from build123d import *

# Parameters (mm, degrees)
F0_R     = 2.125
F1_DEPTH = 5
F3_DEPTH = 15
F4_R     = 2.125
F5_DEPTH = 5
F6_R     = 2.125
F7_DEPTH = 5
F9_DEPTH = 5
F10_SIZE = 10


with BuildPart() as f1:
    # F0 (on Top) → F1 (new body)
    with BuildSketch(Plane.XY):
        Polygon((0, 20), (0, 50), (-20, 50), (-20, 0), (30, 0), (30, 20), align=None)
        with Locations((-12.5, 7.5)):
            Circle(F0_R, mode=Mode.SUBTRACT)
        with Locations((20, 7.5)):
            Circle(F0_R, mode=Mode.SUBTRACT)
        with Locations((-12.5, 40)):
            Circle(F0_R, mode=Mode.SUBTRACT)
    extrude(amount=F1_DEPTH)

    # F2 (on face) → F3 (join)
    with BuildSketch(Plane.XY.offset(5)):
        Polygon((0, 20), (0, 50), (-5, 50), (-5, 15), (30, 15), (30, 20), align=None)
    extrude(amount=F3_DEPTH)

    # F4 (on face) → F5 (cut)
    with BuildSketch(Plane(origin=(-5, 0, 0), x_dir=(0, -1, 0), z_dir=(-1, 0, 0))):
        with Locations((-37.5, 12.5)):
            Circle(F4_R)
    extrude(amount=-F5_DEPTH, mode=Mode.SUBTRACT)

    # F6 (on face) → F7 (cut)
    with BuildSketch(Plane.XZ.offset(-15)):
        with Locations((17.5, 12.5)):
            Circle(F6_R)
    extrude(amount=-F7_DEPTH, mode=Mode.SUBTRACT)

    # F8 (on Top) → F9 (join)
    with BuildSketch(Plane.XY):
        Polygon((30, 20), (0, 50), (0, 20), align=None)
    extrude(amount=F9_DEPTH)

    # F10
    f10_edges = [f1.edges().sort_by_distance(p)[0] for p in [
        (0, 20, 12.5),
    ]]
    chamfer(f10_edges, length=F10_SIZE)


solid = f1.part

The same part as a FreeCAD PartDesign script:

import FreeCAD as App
import Part
import Sketcher

V = App.Vector


def edges_at(feature, points):
    """Names of the edges that pass closest to the given points."""
    edges = feature.Shape.Edges
    near = lambda p: min(range(len(edges)), key=lambda i: edges[i].distToShape(Part.Vertex(*p))[0])
    return sorted({f"Edge{near(p) + 1}" for p in points})

doc = App.newDocument("Part")
body = doc.addObject("PartDesign::Body", "Body")

sketch1 = body.newObject("Sketcher::SketchObject", "Sketch")
sketch1.AttachmentSupport = (doc.getObject("XY_Plane"), [""])
sketch1.MapMode = "FlatFace"
sketch1.addGeometry(Part.LineSegment(V(0, 20, 0), V(0, 50, 0)), False)
sketch1.addGeometry(Part.LineSegment(V(0, 50, 0), V(-20, 50, 0)), False)
sketch1.addGeometry(Part.LineSegment(V(-20, 50, 0), V(-20, 0, 0)), False)
sketch1.addGeometry(Part.LineSegment(V(-20, 0, 0), V(30, 0, 0)), False)
sketch1.addGeometry(Part.LineSegment(V(30, 0, 0), V(30, 20, 0)), False)
sketch1.addGeometry(Part.LineSegment(V(30, 20, 0), V(0, 20, 0)), False)
sketch1.addGeometry(Part.Circle(V(-12.5, 7.5, 0), V(0, 0, 1), 2.125), False)
sketch1.addGeometry(Part.Circle(V(20, 7.5, 0), V(0, 0, 1), 2.125), False)
sketch1.addGeometry(Part.Circle(V(-12.5, 40, 0), V(0, 0, 1), 2.125), False)
sketch1.addConstraint(Sketcher.Constraint("Coincident", 0, 2, 1, 1))
sketch1.addConstraint(Sketcher.Constraint("Coincident", 1, 2, 2, 1))
sketch1.addConstraint(Sketcher.Constraint("Coincident", 2, 2, 3, 1))
sketch1.addConstraint(Sketcher.Constraint("Coincident", 3, 2, 4, 1))
sketch1.addConstraint(Sketcher.Constraint("Coincident", 4, 2, 5, 1))
sketch1.addConstraint(Sketcher.Constraint("Coincident", 5, 2, 0, 1))
sketch1.addConstraint(Sketcher.Constraint("Vertical", 0))
sketch1.addConstraint(Sketcher.Constraint("Horizontal", 1))
sketch1.addConstraint(Sketcher.Constraint("Vertical", 2))
sketch1.addConstraint(Sketcher.Constraint("Horizontal", 3))
sketch1.addConstraint(Sketcher.Constraint("Vertical", 4))
sketch1.addConstraint(Sketcher.Constraint("Horizontal", 5))
sketch1.addConstraint(Sketcher.Constraint("Equal", 6, 7))
sketch1.addConstraint(Sketcher.Constraint("Equal", 7, 8))
sketch1.addConstraint(Sketcher.Constraint("PointOnObject", 0, 2, -2))
sketch1.addConstraint(Sketcher.Constraint("PointOnObject", 2, 2, -1))
sketch1.addConstraint(Sketcher.Constraint("Horizontal", 6, 3, 7, 3))
sketch1.addConstraint(Sketcher.Constraint("Vertical", 6, 3, 8, 3))
sketch1.addConstraint(Sketcher.Constraint("Equal", 5, 0))
sketch1.addConstraint(Sketcher.Constraint("Equal", 3, 2))
sketch1.addConstraint(Sketcher.Constraint("Diameter", 6, 4.25))
sketch1.addConstraint(Sketcher.Constraint("DistanceX", 1, 2, 1, 1, 20.0))
sketch1.addConstraint(Sketcher.Constraint("DistanceX", 3, 1, 3, 2, 50.0))
sketch1.addConstraint(Sketcher.Constraint("DistanceX", -1, 1, 7, 3, 20.0))
sketch1.addConstraint(Sketcher.Constraint("DistanceY", -1, 1, 8, 3, 40.0))
sketch1.addConstraint(Sketcher.Constraint("DistanceX", 6, 3, -1, 1, 12.5))
sketch1.addConstraint(Sketcher.Constraint("DistanceY", -1, 1, 6, 3, 7.5))
pad1 = body.newObject("PartDesign::Pad", "Pad")
pad1.Profile = sketch1
pad1.Length = 5

sketch2 = body.newObject("Sketcher::SketchObject", "Sketch001")
sketch2.AttachmentSupport = (doc.getObject("XY_Plane"), [""])
sketch2.MapMode = "FlatFace"
sketch2.AttachmentOffset = App.Placement(V(0, 0, 5), App.Rotation())
sketch2.addGeometry(Part.LineSegment(V(0, 20, 0), V(0, 50, 0)), False)
sketch2.addGeometry(Part.LineSegment(V(0, 50, 0), V(-5, 50, 0)), False)
sketch2.addGeometry(Part.LineSegment(V(-5, 50, 0), V(-5, 15, 0)), False)
sketch2.addGeometry(Part.LineSegment(V(-5, 15, 0), V(30, 15, 0)), False)
sketch2.addGeometry(Part.LineSegment(V(30, 15, 0), V(30, 20, 0)), False)
sketch2.addGeometry(Part.LineSegment(V(30, 20, 0), V(0, 20, 0)), False)
sketch2.addConstraint(Sketcher.Constraint("Coincident", 0, 2, 1, 1))
sketch2.addConstraint(Sketcher.Constraint("Coincident", 1, 2, 2, 1))
sketch2.addConstraint(Sketcher.Constraint("Coincident", 2, 2, 3, 1))
sketch2.addConstraint(Sketcher.Constraint("Coincident", 3, 2, 4, 1))
sketch2.addConstraint(Sketcher.Constraint("Coincident", 4, 2, 5, 1))
sketch2.addConstraint(Sketcher.Constraint("Coincident", 5, 2, 0, 1))
sketch2.addConstraint(Sketcher.Constraint("Vertical", 0))
sketch2.addConstraint(Sketcher.Constraint("Horizontal", 1))
sketch2.addConstraint(Sketcher.Constraint("Vertical", 2))
sketch2.addConstraint(Sketcher.Constraint("Horizontal", 3))
sketch2.addConstraint(Sketcher.Constraint("Vertical", 4))
sketch2.addConstraint(Sketcher.Constraint("Horizontal", 5))
sketch2.addConstraint(Sketcher.Constraint("PointOnObject", 0, 2, -2))
sketch2.addConstraint(Sketcher.Constraint("Equal", 5, 0))
sketch2.addConstraint(Sketcher.Constraint("Equal", 3, 2))
sketch2.addConstraint(Sketcher.Constraint("DistanceX", 1, 2, 1, 1, 5.0))
sketch2.addConstraint(Sketcher.Constraint("DistanceX", 3, 1, 3, 2, 35.0))
sketch2.addConstraint(Sketcher.Constraint("DistanceY", -1, 1, 0, 2, 50.0))
pad2 = body.newObject("PartDesign::Pad", "Pad001")
pad2.Profile = sketch2
pad2.Length = 15

sketch3 = body.newObject("Sketcher::SketchObject", "Sketch002")
sketch3.AttachmentSupport = (doc.getObject("YZ_Plane"), [""])
sketch3.MapMode = "FlatFace"
sketch3.AttachmentOffset = App.Placement(V(0, 0, -5), App.Rotation())
sketch3.addGeometry(Part.Circle(V(37.5, 12.5, 0), V(0, 0, 1), 2.125), False)
sketch3.addConstraint(Sketcher.Constraint("Diameter", 0, 4.25))
sketch3.addConstraint(Sketcher.Constraint("DistanceX", -1, 1, 0, 3, 37.5))
sketch3.addConstraint(Sketcher.Constraint("DistanceY", -1, 1, 0, 3, 12.5))
pocket1 = body.newObject("PartDesign::Pocket", "Pocket")
pocket1.Profile = sketch3
pocket1.Length = 5
pocket1.Reversed = True

sketch4 = body.newObject("Sketcher::SketchObject", "Sketch003")
sketch4.AttachmentSupport = (doc.getObject("XZ_Plane"), [""])
sketch4.MapMode = "FlatFace"
sketch4.AttachmentOffset = App.Placement(V(0, 0, -15), App.Rotation())
sketch4.addGeometry(Part.Circle(V(17.5, 12.5, 0), V(0, 0, 1), 2.125), False)
sketch4.addConstraint(Sketcher.Constraint("Diameter", 0, 4.25))
sketch4.addConstraint(Sketcher.Constraint("DistanceX", -1, 1, 0, 3, 17.5))
sketch4.addConstraint(Sketcher.Constraint("DistanceY", -1, 1, 0, 3, 12.5))
pocket2 = body.newObject("PartDesign::Pocket", "Pocket001")
pocket2.Profile = sketch4
pocket2.Length = 5

sketch5 = body.newObject("Sketcher::SketchObject", "Sketch004")
sketch5.AttachmentSupport = (doc.getObject("XY_Plane"), [""])
sketch5.MapMode = "FlatFace"
sketch5.addGeometry(Part.LineSegment(V(30, 20, 0), V(0, 50, 0)), False)
sketch5.addGeometry(Part.LineSegment(V(0, 50, 0), V(0, 20, 0)), False)
sketch5.addGeometry(Part.LineSegment(V(0, 20, 0), V(30, 20, 0)), False)
sketch5.addConstraint(Sketcher.Constraint("Coincident", 0, 2, 1, 1))
sketch5.addConstraint(Sketcher.Constraint("Coincident", 1, 2, 2, 1))
sketch5.addConstraint(Sketcher.Constraint("Coincident", 2, 2, 0, 1))
sketch5.addConstraint(Sketcher.Constraint("Vertical", 1))
sketch5.addConstraint(Sketcher.Constraint("Horizontal", 2))
sketch5.addConstraint(Sketcher.Constraint("PointOnObject", 0, 2, -2))
sketch5.addConstraint(Sketcher.Constraint("Equal", 2, 1))
sketch5.addConstraint(Sketcher.Constraint("DistanceX", 2, 1, 2, 2, 30.0))
sketch5.addConstraint(Sketcher.Constraint("DistanceY", -1, 1, 0, 2, 50.0))
pad3 = body.newObject("PartDesign::Pad", "Pad002")
pad3.Profile = sketch5
pad3.Length = 5
doc.recompute()

chamfer = body.newObject("PartDesign::Chamfer", "Chamfer")
chamfer.Base = (pad3, edges_at(pad3, [(0, 20, 12.5)]))
chamfer.Size = 10

doc.recompute()
